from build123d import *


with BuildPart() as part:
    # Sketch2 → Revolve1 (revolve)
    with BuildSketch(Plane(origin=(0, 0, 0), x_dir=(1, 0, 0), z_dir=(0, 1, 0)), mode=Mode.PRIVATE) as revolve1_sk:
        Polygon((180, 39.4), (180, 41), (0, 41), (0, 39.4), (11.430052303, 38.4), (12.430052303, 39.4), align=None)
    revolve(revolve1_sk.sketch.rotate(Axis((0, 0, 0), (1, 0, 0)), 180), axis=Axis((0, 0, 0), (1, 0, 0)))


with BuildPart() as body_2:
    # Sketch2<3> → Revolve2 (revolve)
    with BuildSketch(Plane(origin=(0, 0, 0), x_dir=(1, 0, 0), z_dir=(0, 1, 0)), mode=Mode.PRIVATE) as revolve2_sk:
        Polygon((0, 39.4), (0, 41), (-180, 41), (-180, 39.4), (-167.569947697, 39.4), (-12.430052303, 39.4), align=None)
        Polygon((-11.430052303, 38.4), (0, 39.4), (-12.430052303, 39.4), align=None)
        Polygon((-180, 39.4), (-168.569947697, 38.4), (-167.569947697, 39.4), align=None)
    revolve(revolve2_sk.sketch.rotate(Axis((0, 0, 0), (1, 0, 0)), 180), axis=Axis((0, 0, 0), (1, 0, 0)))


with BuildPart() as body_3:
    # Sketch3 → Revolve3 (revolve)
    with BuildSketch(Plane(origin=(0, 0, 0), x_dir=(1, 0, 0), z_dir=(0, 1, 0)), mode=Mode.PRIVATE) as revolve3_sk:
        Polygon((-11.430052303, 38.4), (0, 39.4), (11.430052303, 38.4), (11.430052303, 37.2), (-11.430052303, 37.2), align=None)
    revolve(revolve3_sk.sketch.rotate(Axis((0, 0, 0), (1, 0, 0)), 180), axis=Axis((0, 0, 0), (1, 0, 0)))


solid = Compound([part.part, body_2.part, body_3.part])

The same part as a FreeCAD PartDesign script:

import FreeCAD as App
import Part
import Sketcher

V = App.Vector
Q = App.Units.Quantity


def add_polygon(sketch, points):
    """Adds a closed chain of lines whose ends are joined by coincident constraints."""
    first, n = sketch.GeometryCount, len(points)
    for a, b in zip(points, points[1:] + points[:1]):
        sketch.addGeometry(Part.LineSegment(App.Vector(*a, 0), App.Vector(*b, 0)), False)
    for i in range(n):
        sketch.addConstraint(Sketcher.Constraint("Coincident", first + i, 2, first + (i + 1) % n, 1))

doc = App.newDocument("Part")
body = doc.addObject("PartDesign::Body", "Body")

sketch1 = body.newObject("Sketcher::SketchObject", "Sketch")
sketch1.AttachmentSupport = (doc.getObject("XZ_Plane"), [""])
sketch1.MapMode = "FlatFace"
add_polygon(sketch1, [(180, -39.4), (180, -41), (0, -41), (0, -39.4), (11.430052, -38.4), (12.430052, -39.4)])
sketch1.addConstraint([
    Sketcher.Constraint("Vertical", 0),
    Sketcher.Constraint("Horizontal", 1),
    Sketcher.Constraint("Vertical", 2),
    Sketcher.Constraint("Horizontal", 5),
    Sketcher.Constraint("PointOnObject", 1, 2, -2),
    Sketcher.Constraint("Horizontal", 2, 2, 4, 2),
    Sketcher.Constraint("DistanceX", 1, 2, 1, 1, Q("180 mm")),
    Sketcher.Constraint("Angle", 3, Q("5 deg")),
    Sketcher.Constraint("Angle", 4, Q("-45 deg")),
    Sketcher.Constraint("DistanceY", 0, 2, 0, 1, Q("1.6 mm")),
    Sketcher.Constraint("DistanceY", 0, 2, -1, 1, Q("41 mm")),
    Sketcher.Constraint("DistanceY", 2, 2, 3, 2, Q("1 mm")),
])
revolution = body.newObject("PartDesign::Revolution", "Revolution")
revolution.Profile = sketch1
revolution.ReferenceAxis = (sketch1, ["H_Axis"])
revolution.Angle = 360
body2 = doc.addObject("PartDesign::Body", "Body001")

sketch2 = body2.newObject("Sketcher::SketchObject", "Sketch001")
sketch2.AttachmentSupport = (doc.getObject("XZ_Plane001"), [""])
sketch2.MapMode = "FlatFace"
add_polygon(sketch2, [(0, -39.4), (0, -41), (-180, -41), (-180, -39.4), (-168.569948, -38.4), (-167.569948, -39.4), (-12.430052, -39.4), (-11.430052, -38.4)])
sketch2.addConstraint([
    Sketcher.Constraint("Vertical", 0),
    Sketcher.Constraint("Horizontal", 1),
    Sketcher.Constraint("Vertical", 2),
    Sketcher.Constraint("Horizontal", 5),
    Sketcher.Constraint("PointOnObject", 0, 2, -2),
    Sketcher.Constraint("Perpendicular", 4, 6),
    Sketcher.Constraint("Horizontal", 2, 2, 4, 2),
    Sketcher.Constraint("Horizontal", 3, 2, 6, 2),
    Sketcher.Constraint("Horizontal", 5, 2, 7, 2),
    Sketcher.Constraint("Equal", 4, 6),
    Sketcher.Constraint("Equal", 3, 7),
    Sketcher.Constraint("DistanceX", 1, 2, 1, 1, Q("180 mm")),
    Sketcher.Constraint("Angle", 3, Q("5 deg")),
    Sketcher.Constraint("DistanceY", 0, 2, 0, 1, Q("1.6 mm")),
    Sketcher.Constraint("DistanceY", 0, 2, -1, 1, Q("41 mm")),
    Sketcher.Constraint("DistanceY", 2, 2, 3, 2, Q("1 mm")),
])
revolution2 = body2.newObject("PartDesign::Revolution", "Revolution001")
revolution2.Profile = sketch2
revolution2.ReferenceAxis = (sketch2, ["H_Axis"])
revolution2.Angle = 360
body3 = doc.addObject("PartDesign::Body", "Body002")

sketch3 = body3.newObject("Sketcher::SketchObject", "Sketch002")
sketch3.AttachmentSupport = (doc.getObject("XZ_Plane002"), [""])
sketch3.MapMode = "FlatFace"
add_polygon(sketch3, [(0, -39.4), (-11.430052, -38.4), (-11.430052, -37.2), (11.430052, -37.2), (11.430052, -38.4)])
sketch3.addConstraint([
    Sketcher.Constraint("Vertical", 1),
    Sketcher.Constraint("Horizontal", 2),
    Sketcher.Constraint("Vertical", 3),
    Sketcher.Constraint("Symmetric", 0, 2, 3, 2, -2),
    Sketcher.Constraint("PointOnObject", 4, 2, -2),
    Sketcher.Constraint("Angle", 0, Q("175 deg")),
    Sketcher.Constraint("DistanceY", 1, 1, 1, 2, Q("1.2 mm")),
    Sketcher.Constraint("DistanceY", 4, 2, 0, 2, Q("1 mm")),
    Sketcher.Constraint("DistanceY", 0, 2, -1, 1, Q("38.4 mm")),
])
revolution3 = body3.newObject("PartDesign::Revolution", "Revolution002")
revolution3.Profile = sketch3
revolution3.ReferenceAxis = (sketch3, ["H_Axis"])
revolution3.Angle = 360

doc.recompute()
